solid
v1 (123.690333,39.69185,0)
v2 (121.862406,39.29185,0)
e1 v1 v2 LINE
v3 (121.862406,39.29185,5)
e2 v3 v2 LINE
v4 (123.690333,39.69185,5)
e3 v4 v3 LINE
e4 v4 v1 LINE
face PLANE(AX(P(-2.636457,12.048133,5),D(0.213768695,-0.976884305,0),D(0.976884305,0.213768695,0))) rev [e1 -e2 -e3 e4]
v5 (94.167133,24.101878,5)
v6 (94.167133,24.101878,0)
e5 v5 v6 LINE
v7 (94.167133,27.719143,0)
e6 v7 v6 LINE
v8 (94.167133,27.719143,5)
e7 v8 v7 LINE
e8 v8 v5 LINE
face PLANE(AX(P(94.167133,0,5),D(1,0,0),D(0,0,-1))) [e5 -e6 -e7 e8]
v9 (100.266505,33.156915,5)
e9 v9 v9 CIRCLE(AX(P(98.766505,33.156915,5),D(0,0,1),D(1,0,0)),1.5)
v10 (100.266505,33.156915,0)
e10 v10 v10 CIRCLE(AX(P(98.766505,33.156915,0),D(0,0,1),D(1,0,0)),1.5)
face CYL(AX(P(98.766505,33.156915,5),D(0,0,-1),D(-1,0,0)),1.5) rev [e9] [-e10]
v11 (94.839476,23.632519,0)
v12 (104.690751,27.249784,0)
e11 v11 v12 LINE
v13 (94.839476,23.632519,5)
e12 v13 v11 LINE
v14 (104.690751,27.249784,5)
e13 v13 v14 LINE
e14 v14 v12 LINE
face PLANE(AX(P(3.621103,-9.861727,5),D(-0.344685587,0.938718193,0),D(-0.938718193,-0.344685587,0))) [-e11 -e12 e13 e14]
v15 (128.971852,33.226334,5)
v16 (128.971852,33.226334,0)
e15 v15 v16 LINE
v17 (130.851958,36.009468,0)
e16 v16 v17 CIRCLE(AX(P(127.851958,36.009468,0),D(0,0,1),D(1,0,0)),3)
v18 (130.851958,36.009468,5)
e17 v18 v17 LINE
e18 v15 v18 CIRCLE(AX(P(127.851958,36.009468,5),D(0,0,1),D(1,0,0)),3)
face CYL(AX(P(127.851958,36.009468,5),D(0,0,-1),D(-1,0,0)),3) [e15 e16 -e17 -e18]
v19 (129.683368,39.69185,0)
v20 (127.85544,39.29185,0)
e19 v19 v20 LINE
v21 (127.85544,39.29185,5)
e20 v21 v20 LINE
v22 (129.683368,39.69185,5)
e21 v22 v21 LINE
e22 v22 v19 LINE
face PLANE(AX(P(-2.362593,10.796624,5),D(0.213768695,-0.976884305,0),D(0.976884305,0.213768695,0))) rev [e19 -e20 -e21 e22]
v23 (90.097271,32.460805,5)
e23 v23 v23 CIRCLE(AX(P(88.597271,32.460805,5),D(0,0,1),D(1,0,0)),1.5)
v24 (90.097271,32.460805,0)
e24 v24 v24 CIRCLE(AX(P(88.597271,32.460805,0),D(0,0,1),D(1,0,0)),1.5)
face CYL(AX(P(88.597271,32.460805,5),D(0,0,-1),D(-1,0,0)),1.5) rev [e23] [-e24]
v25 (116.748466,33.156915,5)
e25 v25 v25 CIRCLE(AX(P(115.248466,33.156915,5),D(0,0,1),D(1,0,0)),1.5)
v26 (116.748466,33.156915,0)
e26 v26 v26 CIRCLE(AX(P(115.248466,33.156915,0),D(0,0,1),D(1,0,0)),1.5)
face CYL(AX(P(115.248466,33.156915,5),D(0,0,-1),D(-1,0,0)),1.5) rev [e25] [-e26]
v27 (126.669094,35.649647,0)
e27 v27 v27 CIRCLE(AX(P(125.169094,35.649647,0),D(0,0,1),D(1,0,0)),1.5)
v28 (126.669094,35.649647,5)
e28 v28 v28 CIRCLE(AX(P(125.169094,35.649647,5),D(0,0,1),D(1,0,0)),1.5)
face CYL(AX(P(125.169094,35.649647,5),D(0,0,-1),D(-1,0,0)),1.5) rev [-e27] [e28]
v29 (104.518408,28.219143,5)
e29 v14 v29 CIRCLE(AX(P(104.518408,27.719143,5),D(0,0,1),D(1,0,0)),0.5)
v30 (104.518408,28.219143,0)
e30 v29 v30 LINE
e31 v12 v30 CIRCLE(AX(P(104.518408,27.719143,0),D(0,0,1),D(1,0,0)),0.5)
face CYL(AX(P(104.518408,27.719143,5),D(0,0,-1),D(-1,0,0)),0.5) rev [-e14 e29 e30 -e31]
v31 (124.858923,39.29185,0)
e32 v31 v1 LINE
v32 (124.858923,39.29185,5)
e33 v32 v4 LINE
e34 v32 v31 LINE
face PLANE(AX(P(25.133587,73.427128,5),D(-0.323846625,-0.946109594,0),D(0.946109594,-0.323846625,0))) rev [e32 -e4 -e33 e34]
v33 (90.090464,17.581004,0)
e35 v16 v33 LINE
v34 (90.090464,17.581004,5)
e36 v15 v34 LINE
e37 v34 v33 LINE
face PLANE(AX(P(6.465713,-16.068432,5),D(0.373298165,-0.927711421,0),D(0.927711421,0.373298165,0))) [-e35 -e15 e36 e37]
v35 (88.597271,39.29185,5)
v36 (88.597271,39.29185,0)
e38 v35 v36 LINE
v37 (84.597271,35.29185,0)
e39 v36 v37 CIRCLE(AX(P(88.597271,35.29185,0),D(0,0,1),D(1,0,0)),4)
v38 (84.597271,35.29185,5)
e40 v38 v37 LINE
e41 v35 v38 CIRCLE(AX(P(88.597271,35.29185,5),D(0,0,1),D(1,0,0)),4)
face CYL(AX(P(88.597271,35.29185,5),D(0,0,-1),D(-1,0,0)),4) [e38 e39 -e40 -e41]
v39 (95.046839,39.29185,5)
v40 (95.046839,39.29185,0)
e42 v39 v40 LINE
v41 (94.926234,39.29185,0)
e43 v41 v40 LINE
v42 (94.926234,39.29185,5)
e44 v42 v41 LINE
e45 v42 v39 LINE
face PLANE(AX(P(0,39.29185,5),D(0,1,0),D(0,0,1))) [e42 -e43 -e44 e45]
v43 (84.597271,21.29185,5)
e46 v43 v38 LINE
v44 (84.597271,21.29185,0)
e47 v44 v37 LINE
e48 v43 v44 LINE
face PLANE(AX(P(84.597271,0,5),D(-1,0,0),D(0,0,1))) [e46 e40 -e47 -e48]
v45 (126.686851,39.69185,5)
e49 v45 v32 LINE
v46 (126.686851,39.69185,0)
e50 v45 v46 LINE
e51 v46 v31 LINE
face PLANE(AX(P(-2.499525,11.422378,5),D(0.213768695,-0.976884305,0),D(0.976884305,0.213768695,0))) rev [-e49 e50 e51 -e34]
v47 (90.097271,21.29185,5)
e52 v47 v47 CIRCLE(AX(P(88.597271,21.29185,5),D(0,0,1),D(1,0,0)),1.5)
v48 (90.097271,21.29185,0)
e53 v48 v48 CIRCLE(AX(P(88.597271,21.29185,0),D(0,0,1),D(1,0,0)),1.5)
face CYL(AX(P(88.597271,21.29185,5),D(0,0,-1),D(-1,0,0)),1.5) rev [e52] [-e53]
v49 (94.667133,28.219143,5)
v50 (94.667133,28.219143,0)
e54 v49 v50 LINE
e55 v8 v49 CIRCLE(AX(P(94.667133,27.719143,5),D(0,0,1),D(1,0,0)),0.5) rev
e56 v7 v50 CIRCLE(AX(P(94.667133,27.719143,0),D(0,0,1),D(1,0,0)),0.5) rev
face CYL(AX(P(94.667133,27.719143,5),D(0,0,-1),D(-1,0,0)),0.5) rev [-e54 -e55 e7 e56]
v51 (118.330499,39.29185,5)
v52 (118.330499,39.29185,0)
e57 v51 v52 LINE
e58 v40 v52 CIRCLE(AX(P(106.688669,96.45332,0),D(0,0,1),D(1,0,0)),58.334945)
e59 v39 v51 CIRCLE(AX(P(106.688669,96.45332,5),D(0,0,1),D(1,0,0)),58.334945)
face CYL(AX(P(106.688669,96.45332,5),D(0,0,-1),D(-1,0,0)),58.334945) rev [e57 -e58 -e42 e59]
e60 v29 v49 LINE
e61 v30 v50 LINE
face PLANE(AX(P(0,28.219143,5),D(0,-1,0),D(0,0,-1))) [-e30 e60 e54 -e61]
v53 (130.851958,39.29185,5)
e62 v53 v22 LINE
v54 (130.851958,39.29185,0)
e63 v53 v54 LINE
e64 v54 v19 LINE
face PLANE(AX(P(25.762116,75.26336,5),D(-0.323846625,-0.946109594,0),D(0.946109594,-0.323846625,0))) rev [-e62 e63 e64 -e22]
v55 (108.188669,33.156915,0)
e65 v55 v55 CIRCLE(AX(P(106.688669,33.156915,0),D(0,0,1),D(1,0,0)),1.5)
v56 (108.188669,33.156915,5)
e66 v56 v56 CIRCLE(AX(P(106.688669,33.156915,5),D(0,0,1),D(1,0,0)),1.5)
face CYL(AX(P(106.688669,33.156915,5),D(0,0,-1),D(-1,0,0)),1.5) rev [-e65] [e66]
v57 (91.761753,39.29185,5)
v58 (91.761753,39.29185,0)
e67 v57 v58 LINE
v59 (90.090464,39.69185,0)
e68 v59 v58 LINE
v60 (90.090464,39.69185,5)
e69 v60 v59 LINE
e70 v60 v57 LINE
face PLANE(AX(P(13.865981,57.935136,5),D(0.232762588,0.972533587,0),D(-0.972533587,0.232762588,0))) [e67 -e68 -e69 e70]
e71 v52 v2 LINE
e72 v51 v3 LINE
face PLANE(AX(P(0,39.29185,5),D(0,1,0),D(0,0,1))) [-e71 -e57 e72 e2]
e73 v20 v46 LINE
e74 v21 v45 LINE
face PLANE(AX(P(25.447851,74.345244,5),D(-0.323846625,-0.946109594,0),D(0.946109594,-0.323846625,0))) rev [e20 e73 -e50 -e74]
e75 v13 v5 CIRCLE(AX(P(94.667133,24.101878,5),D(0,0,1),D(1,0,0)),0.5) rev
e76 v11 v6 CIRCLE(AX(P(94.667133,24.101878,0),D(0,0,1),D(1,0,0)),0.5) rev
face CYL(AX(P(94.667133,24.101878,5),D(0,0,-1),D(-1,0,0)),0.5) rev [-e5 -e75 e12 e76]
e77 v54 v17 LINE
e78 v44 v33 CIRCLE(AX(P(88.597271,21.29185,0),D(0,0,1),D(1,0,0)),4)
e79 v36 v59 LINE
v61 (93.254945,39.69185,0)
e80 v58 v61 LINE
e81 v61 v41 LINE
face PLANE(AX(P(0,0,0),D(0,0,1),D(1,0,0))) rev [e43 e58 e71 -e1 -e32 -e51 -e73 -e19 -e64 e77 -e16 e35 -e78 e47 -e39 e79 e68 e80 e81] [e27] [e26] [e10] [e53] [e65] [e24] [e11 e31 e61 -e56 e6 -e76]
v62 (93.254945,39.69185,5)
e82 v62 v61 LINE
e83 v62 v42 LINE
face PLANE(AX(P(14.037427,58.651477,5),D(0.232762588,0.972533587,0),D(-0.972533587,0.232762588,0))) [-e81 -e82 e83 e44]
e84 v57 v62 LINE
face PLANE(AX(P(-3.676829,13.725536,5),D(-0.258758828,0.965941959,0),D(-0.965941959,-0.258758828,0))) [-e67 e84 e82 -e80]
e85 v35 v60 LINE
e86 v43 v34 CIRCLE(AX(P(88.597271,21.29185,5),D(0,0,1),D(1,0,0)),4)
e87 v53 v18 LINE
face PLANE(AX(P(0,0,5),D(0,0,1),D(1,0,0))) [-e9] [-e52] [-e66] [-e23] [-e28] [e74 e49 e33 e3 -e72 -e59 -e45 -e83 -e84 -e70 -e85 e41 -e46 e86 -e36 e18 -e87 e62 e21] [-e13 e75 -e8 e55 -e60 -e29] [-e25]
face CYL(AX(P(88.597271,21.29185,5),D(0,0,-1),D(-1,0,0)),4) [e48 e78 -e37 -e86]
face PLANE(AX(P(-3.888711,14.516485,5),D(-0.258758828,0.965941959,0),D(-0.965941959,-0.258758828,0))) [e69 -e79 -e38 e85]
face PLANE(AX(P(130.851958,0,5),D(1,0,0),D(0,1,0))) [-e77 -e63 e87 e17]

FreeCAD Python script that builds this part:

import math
import FreeCAD as App
import Part
import Sketcher

V = App.Vector
Q = App.Units.Quantity

doc = App.newDocument("Part")
body = doc.addObject("PartDesign::Body", "Body")

# Sketch on XY plane
sketch1 = doc.addObject("Sketcher::SketchObject", "Sketch")
body.addObject(sketch1)
sketch1.AttachmentSupport = (doc.XY_Plane, [""])
sketch1.MapMode = "FlatFace"
sketch1.addGeometry(Part.LineSegment(V(90.09, 17.58, 0), V(128.97, 33.23, 0)), False)
sketch1.addGeometry(Part.ArcOfCircle(Part.Circle(V(127.85, 36.01, 0), V(0, 0, 1), 3), math.radians(-68), math.radians(0)), False)
sketch1.addGeometry(Part.LineSegment(V(130.85, 36.01, 0), V(130.85, 39.29, 0)), False)
sketch1.addGeometry(Part.LineSegment(V(130.85, 39.29, 0), V(129.68, 39.69, 0)), False)
sketch1.addGeometry(Part.LineSegment(V(129.68, 39.69, 0), V(127.86, 39.29, 0)), False)
sketch1.addGeometry(Part.LineSegment(V(127.86, 39.29, 0), V(126.69, 39.69, 0)), False)
sketch1.addGeometry(Part.LineSegment(V(126.69, 39.69, 0), V(124.86, 39.29, 0)), False)
sketch1.addGeometry(Part.LineSegment(V(124.86, 39.29, 0), V(123.69, 39.69, 0)), False)
sketch1.addGeometry(Part.LineSegment(V(123.69, 39.69, 0), V(121.86, 39.29, 0)), False)
sketch1.addGeometry(Part.LineSegment(V(121.86, 39.29, 0), V(118.33, 39.29, 0)), False)
sketch1.addGeometry(Part.ArcOfCircle(Part.Circle(V(106.69, 96.45, 0), V(0, 0, 1), 58.33), math.radians(-102), math.radians(-78)), False)
sketch1.addGeometry(Part.LineSegment(V(95.05, 39.29, 0), V(94.93, 39.29, 0)), False)
sketch1.addGeometry(Part.LineSegment(V(94.93, 39.29, 0), V(93.25, 39.69, 0)), False)
sketch1.addGeometry(Part.LineSegment(V(93.25, 39.69, 0), V(91.76, 39.29, 0)), False)
sketch1.addGeometry(Part.LineSegment(V(91.76, 39.29, 0), V(90.09, 39.69, 0)), False)
sketch1.addGeometry(Part.LineSegment(V(90.09, 39.69, 0), V(88.6, 39.29, 0)), False)
sketch1.addGeometry(Part.ArcOfCircle(Part.Circle(V(88.6, 35.29, 0), V(0, 0, 1), 4), math.radians(90), math.radians(180)), False)
sketch1.addGeometry(Part.LineSegment(V(84.6, 35.29, 0), V(84.6, 21.29, 0)), False)
sketch1.addGeometry(Part.ArcOfCircle(Part.Circle(V(88.6, 21.29, 0), V(0, 0, 1), 4), math.radians(-180), math.radians(-68)), False)
sketch1.addGeometry(Part.Circle(V(88.6, 21.29, 0), V(0, 0, 1), 1.5), False)
sketch1.addGeometry(Part.ArcOfCircle(Part.Circle(V(94.67, 24.1, 0), V(0, 0, 1), 0.5), math.radians(180), math.radians(290)), False)
sketch1.addGeometry(Part.LineSegment(V(94.17, 24.1, 0), V(94.17, 27.72, 0)), False)
sketch1.addGeometry(Part.ArcOfCircle(Part.Circle(V(94.67, 27.72, 0), V(0, 0, 1), 0.5), math.radians(90), math.radians(180)), False)
sketch1.addGeometry(Part.LineSegment(V(94.67, 28.22, 0), V(104.52, 28.22, 0)), False)
sketch1.addGeometry(Part.ArcOfCircle(Part.Circle(V(104.52, 27.72, 0), V(0, 0, 1), 0.5), math.radians(-70), math.radians(90)), False)
sketch1.addGeometry(Part.LineSegment(V(104.69, 27.25, 0), V(94.84, 23.63, 0)), False)
sketch1.addGeometry(Part.Circle(V(88.6, 32.46, 0), V(0, 0, 1), 1.5), False)
sketch1.addGeometry(Part.Circle(V(98.77, 33.16, 0), V(0, 0, 1), 1.5), False)
sketch1.addGeometry(Part.Circle(V(106.69, 33.16, 0), V(0, 0, 1), 1.5), False)
sketch1.addGeometry(Part.Circle(V(115.25, 33.16, 0), V(0, 0, 1), 1.5), False)
sketch1.addGeometry(Part.Circle(V(125.17, 35.65, 0), V(0, 0, 1), 1.5), False)
sketch1.addConstraint(Sketcher.Constraint("Tangent", 0, 2, 1, 1))
sketch1.addConstraint(Sketcher.Constraint("Tangent", 1, 2, 2, 1))
sketch1.addConstraint(Sketcher.Constraint("Coincident", 2, 2, 3, 1))
sketch1.addConstraint(Sketcher.Constraint("Coincident", 3, 2, 4, 1))
sketch1.addConstraint(Sketcher.Constraint("Coincident", 4, 2, 5, 1))
sketch1.addConstraint(Sketcher.Constraint("Coincident", 5, 2, 6, 1))
sketch1.addConstraint(Sketcher.Constraint("Coincident", 6, 2, 7, 1))
sketch1.addConstraint(Sketcher.Constraint("Coincident", 7, 2, 8, 1))
sketch1.addConstraint(Sketcher.Constraint("Coincident", 8, 2, 9, 1))
sketch1.addConstraint(Sketcher.Constraint("Coincident", 9, 2, 10, 2))
sketch1.addConstraint(Sketcher.Constraint("Coincident", 10, 1, 11, 1))
sketch1.addConstraint(Sketcher.Constraint("Coincident", 11, 2, 12, 1))
sketch1.addConstraint(Sketcher.Constraint("Coincident", 12, 2, 13, 1))
sketch1.addConstraint(Sketcher.Constraint("Coincident", 13, 2, 14, 1))
sketch1.addConstraint(Sketcher.Constraint("Coincident", 14, 2, 15, 1))
sketch1.addConstraint(Sketcher.Constraint("Coincident", 15, 2, 16, 1))
sketch1.addConstraint(Sketcher.Constraint("Tangent", 16, 2, 17, 1))
sketch1.addConstraint(Sketcher.Constraint("Tangent", 17, 2, 18, 1))
sketch1.addConstraint(Sketcher.Constraint("Tangent", 18, 2, 0, 1))
sketch1.addConstraint(Sketcher.Constraint("Tangent", 20, 1, 21, 1))
sketch1.addConstraint(Sketcher.Constraint("Tangent", 21, 2, 22, 2))
sketch1.addConstraint(Sketcher.Constraint("Tangent", 22, 1, 23, 1))
sketch1.addConstraint(Sketcher.Constraint("Tangent", 23, 2, 24, 2))
sketch1.addConstraint(Sketcher.Constraint("Tangent", 24, 1, 25, 1))
sketch1.addConstraint(Sketcher.Constraint("Tangent", 25, 2, 20, 2))
sketch1.addConstraint(Sketcher.Constraint("Vertical", 2))
sketch1.addConstraint(Sketcher.Constraint("Horizontal", 9))
sketch1.addConstraint(Sketcher.Constraint("Horizontal", 11))
sketch1.addConstraint(Sketcher.Constraint("Vertical", 17))
sketch1.addConstraint(Sketcher.Constraint("Vertical", 21))
sketch1.addConstraint(Sketcher.Constraint("Horizontal", 23))
sketch1.addConstraint(Sketcher.Constraint("Coincident", 19, 3, 18, 3))
sketch1.addConstraint(Sketcher.Constraint("Equal", 16, 18))
sketch1.addConstraint(Sketcher.Constraint("Equal", 20, 22))
sketch1.addConstraint(Sketcher.Constraint("Equal", 22, 24))
sketch1.addConstraint(Sketcher.Constraint("Equal", 19, 26))
sketch1.addConstraint(Sketcher.Constraint("Equal", 26, 27))
sketch1.addConstraint(Sketcher.Constraint("Equal", 27, 28))
sketch1.addConstraint(Sketcher.Constraint("Equal", 28, 29))
sketch1.addConstraint(Sketcher.Constraint("Equal", 29, 30))
sketch1.addConstraint(Sketcher.Constraint("Parallel", 3, 5))
sketch1.addConstraint(Sketcher.Constraint("Parallel", 4, 6))
sketch1.addConstraint(Sketcher.Constraint("Parallel", 5, 7))
sketch1.addConstraint(Sketcher.Constraint("Parallel", 6, 8))
sketch1.addConstraint(Sketcher.Constraint("Parallel", 12, 14))
sketch1.addConstraint(Sketcher.Constraint("Parallel", 13, 15))
sketch1.addConstraint(Sketcher.Constraint("Horizontal", 27, 3, 28, 3))
sketch1.addConstraint(Sketcher.Constraint("Horizontal", 28, 3, 29, 3))
sketch1.addConstraint(Sketcher.Constraint("Horizontal", 2, 2, 4, 2))
sketch1.addConstraint(Sketcher.Constraint("Horizontal", 3, 2, 5, 2))
sketch1.addConstraint(Sketcher.Constraint("Horizontal", 4, 2, 6, 2))
sketch1.addConstraint(Sketcher.Constraint("Horizontal", 5, 2, 7, 2))
sketch1.addConstraint(Sketcher.Constraint("Horizontal", 6, 2, 8, 2))
sketch1.addConstraint(Sketcher.Constraint("Horizontal", 9, 2, 10, 1))
sketch1.addConstraint(Sketcher.Constraint("Horizontal", 7, 2, 12, 2))
sketch1.addConstraint(Sketcher.Constraint("Horizontal", 11, 2, 13, 2))
sketch1.addConstraint(Sketcher.Constraint("Horizontal", 12, 2, 14, 2))
sketch1.addConstraint(Sketcher.Constraint("Horizontal", 13, 2, 15, 2))
sketch1.addConstraint(Sketcher.Constraint("Vertical", 19, 3, 26, 3))
sketch1.addConstraint(Sketcher.Constraint("Vertical", 10, 3, 28, 3))
sketch1.addConstraint(Sketcher.Constraint("Vertical", 26, 3, 15, 2))
sketch1.addConstraint(Sketcher.Constraint("Vertical", 14, 2, 18, 2))
sketch1.addConstraint(Sketcher.Constraint("Diameter", 19, Q("3 mm")))
sketch1.addConstraint(Sketcher.Constraint("Radius", 1, Q("3 mm")))
sketch1.addConstraint(Sketcher.Constraint("Radius", 16, Q("4 mm")))
sketch1.addConstraint(Sketcher.Constraint("Radius", 20, Q("0.5 mm")))
sketch1.addConstraint(Sketcher.Constraint("DistanceY", 17, 2, 17, 1, Q("14 mm")))
sketch1.addConstraint(Sketcher.Constraint("DistanceY", 2, 2, 3, 2, Q("0.4 mm")))
sketch1.addConstraint(Sketcher.Constraint("Radius", 10, Q("58.334945 mm")))
sketch1.addConstraint(Sketcher.Constraint("DistanceY", 2, 1, 2, 2, Q("3.282382 mm")))
sketch1.addConstraint(Sketcher.Constraint("DistanceX", -1, 1, 9, 2, Q("118.330499 mm")))
sketch1.addConstraint(Sketcher.Constraint("DistanceX", 22, 3, 11, 2, Q("0.259101 mm")))
sketch1.addConstraint(Sketcher.Constraint("Distance", 0, Q("41.911081 mm")))
sketch1.addConstraint(Sketcher.Constraint("Distance", 4, Q("1.871181 mm")))
sketch1.addConstraint(Sketcher.Constraint("Distance", 12, Q("1.718489 mm")))
sketch1.addConstraint(Sketcher.Constraint("Distance", 25, Q("10.494391 mm")))
sketch1.addConstraint(Sketcher.Constraint("DistanceX", 9, 2, 9, 1, Q("3.531906 mm")))
sketch1.addConstraint(Sketcher.Constraint("DistanceX", 11, 2, 11, 1, Q("0.120605 mm")))
sketch1.addConstraint(Sketcher.Constraint("DistanceX", 23, 1, 23, 2, Q("9.851275 mm")))
sketch1.addConstraint(Sketcher.Constraint("DistanceY", -1, 1, 1, 3, Q("36.009468 mm")))
sketch1.addConstraint(Sketcher.Constraint("DistanceX", -1, 1, 10, 3, Q("106.688669 mm")))
sketch1.addConstraint(Sketcher.Constraint("DistanceY", -1, 1, 25, 2, Q("23.632519 mm")))
sketch1.addConstraint(Sketcher.Constraint("DistanceY", 26, 3, 27, 3, Q("0.69611 mm")))
sketch1.addConstraint(Sketcher.Constraint("DistanceX", 29, 3, 1, 3, Q("12.603492 mm")))
sketch1.addConstraint(Sketcher.Constraint("DistanceX", 27, 3, 29, 3, Q("16.481961 mm")))
sketch1.addConstraint(Sketcher.Constraint("DistanceY", 30, 3, 1, 3, Q("0.359821 mm")))
sketch1.addConstraint(Sketcher.Constraint("DistanceY", 29, 3, 30, 3, Q("2.492732 mm")))
sketch1.addConstraint(Sketcher.Constraint("DistanceX", 27, 3, 30, 3, Q("26.402589 mm")))
pad1 = doc.addObject("PartDesign::Pad", "Pad")
body.addObject(pad1)
pad1.Profile = sketch1
pad1.Length = 5

doc.recompute()
